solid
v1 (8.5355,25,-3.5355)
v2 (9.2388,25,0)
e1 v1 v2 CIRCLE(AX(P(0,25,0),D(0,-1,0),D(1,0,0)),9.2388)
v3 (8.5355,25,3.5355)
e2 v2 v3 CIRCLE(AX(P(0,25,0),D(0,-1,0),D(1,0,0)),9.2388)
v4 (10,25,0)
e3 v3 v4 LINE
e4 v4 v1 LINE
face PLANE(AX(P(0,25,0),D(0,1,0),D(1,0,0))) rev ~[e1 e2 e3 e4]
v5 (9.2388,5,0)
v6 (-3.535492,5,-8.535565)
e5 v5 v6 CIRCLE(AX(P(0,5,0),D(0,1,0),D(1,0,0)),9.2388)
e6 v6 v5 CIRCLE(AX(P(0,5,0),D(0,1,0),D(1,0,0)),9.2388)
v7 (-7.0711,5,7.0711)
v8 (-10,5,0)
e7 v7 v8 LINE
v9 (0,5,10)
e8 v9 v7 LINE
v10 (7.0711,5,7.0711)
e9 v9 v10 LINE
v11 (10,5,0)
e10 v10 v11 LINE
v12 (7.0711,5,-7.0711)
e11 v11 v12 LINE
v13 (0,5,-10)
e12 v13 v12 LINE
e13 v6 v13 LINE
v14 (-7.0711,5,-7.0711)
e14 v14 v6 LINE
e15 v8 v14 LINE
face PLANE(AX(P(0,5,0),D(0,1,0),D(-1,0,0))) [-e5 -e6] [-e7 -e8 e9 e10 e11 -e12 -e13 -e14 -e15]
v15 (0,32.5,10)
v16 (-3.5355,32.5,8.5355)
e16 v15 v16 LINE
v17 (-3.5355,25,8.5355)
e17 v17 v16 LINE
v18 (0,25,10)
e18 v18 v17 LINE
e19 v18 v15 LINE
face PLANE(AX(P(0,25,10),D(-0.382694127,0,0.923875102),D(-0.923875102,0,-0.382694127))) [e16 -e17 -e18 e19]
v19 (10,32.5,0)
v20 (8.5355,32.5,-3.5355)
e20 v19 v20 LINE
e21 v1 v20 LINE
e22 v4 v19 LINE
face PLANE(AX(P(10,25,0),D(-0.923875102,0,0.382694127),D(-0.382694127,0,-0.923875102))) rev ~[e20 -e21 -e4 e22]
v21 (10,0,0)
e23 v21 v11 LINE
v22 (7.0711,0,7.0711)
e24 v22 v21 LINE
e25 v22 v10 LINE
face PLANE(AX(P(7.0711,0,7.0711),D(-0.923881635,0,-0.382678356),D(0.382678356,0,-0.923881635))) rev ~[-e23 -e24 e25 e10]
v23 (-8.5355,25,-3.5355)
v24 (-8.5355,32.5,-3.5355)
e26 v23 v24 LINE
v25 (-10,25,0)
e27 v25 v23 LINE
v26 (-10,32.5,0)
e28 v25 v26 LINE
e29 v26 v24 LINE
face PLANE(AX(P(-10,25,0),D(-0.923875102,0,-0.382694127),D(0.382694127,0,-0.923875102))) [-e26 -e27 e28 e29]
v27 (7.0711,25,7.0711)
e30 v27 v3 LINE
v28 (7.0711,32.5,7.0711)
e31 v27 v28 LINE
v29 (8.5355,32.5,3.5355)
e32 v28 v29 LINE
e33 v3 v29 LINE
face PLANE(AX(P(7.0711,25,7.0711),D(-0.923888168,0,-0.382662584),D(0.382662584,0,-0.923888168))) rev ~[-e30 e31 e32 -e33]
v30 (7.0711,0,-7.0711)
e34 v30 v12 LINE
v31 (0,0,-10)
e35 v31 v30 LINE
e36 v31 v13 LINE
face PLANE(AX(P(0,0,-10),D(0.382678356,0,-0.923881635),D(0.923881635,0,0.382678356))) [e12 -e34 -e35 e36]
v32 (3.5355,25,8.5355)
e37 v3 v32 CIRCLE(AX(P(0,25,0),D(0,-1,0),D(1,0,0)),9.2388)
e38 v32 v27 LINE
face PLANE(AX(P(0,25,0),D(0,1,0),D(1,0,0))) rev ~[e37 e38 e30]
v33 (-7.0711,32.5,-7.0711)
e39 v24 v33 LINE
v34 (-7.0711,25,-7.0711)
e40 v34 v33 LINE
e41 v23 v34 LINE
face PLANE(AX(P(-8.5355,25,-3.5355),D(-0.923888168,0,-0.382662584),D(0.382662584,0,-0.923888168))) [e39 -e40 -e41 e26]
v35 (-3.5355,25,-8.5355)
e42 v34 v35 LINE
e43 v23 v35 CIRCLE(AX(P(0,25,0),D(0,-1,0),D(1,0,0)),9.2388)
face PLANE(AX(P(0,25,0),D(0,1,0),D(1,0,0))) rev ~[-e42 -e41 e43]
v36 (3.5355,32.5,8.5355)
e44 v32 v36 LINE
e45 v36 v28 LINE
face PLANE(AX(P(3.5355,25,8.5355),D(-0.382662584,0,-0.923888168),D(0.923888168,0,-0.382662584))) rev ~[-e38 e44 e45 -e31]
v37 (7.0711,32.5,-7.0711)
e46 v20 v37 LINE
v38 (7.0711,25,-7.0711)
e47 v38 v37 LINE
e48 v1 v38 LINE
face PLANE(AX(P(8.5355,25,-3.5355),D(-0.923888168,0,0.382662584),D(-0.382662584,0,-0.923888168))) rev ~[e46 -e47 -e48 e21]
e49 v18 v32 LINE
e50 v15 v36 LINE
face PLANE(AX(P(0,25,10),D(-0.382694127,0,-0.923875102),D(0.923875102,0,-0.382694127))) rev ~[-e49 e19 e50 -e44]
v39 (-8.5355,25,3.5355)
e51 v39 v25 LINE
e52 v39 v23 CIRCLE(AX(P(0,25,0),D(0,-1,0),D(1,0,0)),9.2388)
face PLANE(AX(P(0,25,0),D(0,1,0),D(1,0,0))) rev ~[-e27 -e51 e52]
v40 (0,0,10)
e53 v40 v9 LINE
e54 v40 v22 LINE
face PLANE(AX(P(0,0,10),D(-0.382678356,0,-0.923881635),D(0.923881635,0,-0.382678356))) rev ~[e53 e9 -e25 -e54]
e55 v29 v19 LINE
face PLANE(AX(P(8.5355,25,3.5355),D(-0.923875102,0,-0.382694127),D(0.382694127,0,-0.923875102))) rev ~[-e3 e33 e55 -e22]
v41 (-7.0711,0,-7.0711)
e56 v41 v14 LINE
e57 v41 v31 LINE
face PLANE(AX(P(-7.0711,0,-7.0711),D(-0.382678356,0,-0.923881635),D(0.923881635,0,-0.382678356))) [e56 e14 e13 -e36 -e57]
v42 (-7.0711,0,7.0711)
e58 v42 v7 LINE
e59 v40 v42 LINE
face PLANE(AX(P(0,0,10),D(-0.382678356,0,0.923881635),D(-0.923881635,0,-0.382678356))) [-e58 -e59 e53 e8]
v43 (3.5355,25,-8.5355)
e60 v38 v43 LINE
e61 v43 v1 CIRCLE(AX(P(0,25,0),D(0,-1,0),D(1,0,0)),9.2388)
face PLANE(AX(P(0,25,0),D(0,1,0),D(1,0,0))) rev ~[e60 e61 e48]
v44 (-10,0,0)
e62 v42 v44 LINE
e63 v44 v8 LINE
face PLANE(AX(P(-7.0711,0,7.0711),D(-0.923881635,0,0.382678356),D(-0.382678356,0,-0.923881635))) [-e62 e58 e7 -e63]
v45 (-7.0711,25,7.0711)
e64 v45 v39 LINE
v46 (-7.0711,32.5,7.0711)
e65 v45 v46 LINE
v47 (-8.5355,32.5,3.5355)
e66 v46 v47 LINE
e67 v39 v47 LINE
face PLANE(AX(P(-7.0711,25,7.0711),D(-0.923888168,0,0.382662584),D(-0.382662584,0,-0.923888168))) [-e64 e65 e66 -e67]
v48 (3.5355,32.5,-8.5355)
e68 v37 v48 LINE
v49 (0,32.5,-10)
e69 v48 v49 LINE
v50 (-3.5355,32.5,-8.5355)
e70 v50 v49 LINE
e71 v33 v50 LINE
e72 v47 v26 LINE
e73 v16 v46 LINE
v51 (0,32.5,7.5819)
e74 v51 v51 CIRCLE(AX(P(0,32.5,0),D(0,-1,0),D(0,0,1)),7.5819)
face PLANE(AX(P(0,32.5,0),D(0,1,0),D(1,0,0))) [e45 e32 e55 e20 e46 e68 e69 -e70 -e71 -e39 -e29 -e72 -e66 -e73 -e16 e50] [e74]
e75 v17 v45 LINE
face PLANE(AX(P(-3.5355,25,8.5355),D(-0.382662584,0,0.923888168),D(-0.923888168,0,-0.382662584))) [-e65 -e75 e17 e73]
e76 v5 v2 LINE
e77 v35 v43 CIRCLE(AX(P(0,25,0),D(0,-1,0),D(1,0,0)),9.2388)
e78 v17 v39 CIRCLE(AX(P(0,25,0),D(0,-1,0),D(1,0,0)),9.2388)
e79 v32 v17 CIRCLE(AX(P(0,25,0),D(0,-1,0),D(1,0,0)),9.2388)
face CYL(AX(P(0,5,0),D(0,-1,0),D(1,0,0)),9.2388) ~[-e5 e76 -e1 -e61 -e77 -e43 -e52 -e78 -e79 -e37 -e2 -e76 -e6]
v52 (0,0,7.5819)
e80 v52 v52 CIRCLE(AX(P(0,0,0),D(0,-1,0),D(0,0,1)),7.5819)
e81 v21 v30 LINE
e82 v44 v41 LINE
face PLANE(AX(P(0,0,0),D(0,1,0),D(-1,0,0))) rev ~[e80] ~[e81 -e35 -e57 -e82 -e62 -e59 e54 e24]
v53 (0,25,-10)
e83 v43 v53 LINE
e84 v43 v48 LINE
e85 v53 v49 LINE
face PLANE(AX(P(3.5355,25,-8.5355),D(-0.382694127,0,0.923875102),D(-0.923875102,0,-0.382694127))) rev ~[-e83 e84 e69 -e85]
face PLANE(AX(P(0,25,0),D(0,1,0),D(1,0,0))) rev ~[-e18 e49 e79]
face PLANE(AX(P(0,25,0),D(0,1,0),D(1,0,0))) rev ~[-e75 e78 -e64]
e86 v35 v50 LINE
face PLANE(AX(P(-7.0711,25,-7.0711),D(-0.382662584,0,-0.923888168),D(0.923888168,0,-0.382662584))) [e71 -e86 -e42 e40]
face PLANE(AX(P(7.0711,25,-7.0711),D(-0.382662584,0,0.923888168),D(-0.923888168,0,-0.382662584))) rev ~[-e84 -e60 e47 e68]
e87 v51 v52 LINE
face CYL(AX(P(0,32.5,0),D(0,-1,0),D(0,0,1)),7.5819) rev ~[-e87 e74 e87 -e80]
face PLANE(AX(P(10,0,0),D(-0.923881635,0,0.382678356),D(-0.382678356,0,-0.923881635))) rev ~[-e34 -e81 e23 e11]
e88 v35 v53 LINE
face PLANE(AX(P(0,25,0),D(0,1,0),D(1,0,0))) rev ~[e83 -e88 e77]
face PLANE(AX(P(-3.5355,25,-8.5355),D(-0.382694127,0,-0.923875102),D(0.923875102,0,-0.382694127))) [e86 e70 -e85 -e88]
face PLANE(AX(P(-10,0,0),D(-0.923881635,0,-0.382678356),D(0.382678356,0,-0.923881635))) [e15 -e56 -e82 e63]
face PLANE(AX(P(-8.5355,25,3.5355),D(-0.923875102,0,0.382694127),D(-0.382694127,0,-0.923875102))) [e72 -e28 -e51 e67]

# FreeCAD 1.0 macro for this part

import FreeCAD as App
import Part
import Sketcher

V = App.Vector
Q = App.Units.Quantity

doc = App.newDocument("Part")
params = doc.addObject("Spreadsheet::Sheet", "Params")
for row, (alias, value) in enumerate([
    ("pad1_length", "5 mm"),
    ("pad2_length", "20 mm"),
    ("pad3_length", "7.5 mm"),
    ("hole_diameter", "15.1638 mm"),
], start=1):
    params.set(f"A{row}", alias)
    params.set(f"B{row}", "=" + value)
    params.setAlias(f"B{row}", alias)

body = doc.addObject("PartDesign::Body", "Body")

# Sketch on XZ plane
sketch1 = doc.addObject("Sketcher::SketchObject", "Sketch")
body.addObject(sketch1)
sketch1.AttachmentSupport = (doc.XZ_Plane, [""])
sketch1.MapMode = "FlatFace"
sketch1.addGeometry(Part.LineSegment(V(-7, -7, 0), V(-10, 0, 0)), False)
sketch1.addGeometry(Part.LineSegment(V(-10, 0, 0), V(-7, 7, 0)), False)
sketch1.addGeometry(Part.LineSegment(V(-7, 7, 0), V(0, 10, 0)), False)
sketch1.addGeometry(Part.LineSegment(V(0, 10, 0), V(7, 7, 0)), False)
sketch1.addGeometry(Part.LineSegment(V(7, 7, 0), V(10, 0, 0)), False)
sketch1.addGeometry(Part.LineSegment(V(10, 0, 0), V(7, -7, 0)), False)
sketch1.addGeometry(Part.LineSegment(V(7, -7, 0), V(0, -10, 0)), False)
sketch1.addGeometry(Part.LineSegment(V(0, -10, 0), V(-7, -7, 0)), False)
sketch1.addConstraint(Sketcher.Constraint("Coincident", 0, 2, 1, 1))
sketch1.addConstraint(Sketcher.Constraint("Coincident", 1, 2, 2, 1))
sketch1.addConstraint(Sketcher.Constraint("Coincident", 2, 2, 3, 1))
sketch1.addConstraint(Sketcher.Constraint("Coincident", 3, 2, 4, 1))
sketch1.addConstraint(Sketcher.Constraint("Coincident", 4, 2, 5, 1))
sketch1.addConstraint(Sketcher.Constraint("Coincident", 5, 2, 6, 1))
sketch1.addConstraint(Sketcher.Constraint("Coincident", 6, 2, 7, 1))
sketch1.addConstraint(Sketcher.Constraint("Coincident", 7, 2, 0, 1))
sketch1.addConstraint(Sketcher.Constraint("Symmetric", 0, 2, 4, 2, -1, 1))
sketch1.addConstraint(Sketcher.Constraint("Symmetric", 1, 2, 5, 2, -1, 1))
sketch1.addConstraint(Sketcher.Constraint("Symmetric", 2, 2, 6, 2, -1, 1))
sketch1.addConstraint(Sketcher.Constraint("Symmetric", 3, 2, 7, 2, -1, 1))
sketch1.addConstraint(Sketcher.Constraint("Symmetric", 1, 2, 3, 2, -2))
sketch1.addConstraint(Sketcher.Constraint("PointOnObject", 0, 2, -1))
sketch1.addConstraint(Sketcher.Constraint("PointOnObject", 2, 2, -2))
sketch1.addConstraint(Sketcher.Constraint("Perpendicular", 0, 2))
sketch1.addConstraint(Sketcher.Constraint("Equal", 1, 2))
sketch1.addConstraint(Sketcher.Constraint("DistanceX", 0, 2, 4, 2, 20.0))
sketch1.addConstraint(Sketcher.Constraint("Angle", 0, Q("112.4997 deg")))
pad1 = doc.addObject("PartDesign::Pad", "Pad")
body.addObject(pad1)
pad1.Profile = sketch1
pad1.setExpression("Length", "Params.pad1_length")
pad1.Reversed = True

# Sketch on XZ plane
sketch2 = doc.addObject("Sketcher::SketchObject", "Sketch001")
body.addObject(sketch2)
sketch2.AttachmentSupport = (doc.XZ_Plane, [""])
sketch2.MapMode = "FlatFace"
sketch2.AttachmentOffset = App.Placement(V(0, 0, -5), App.Rotation())
sketch2.addGeometry(Part.Circle(V(0, 0, 0), V(0, 0, 1), 9), False)
sketch2.addConstraint(Sketcher.Constraint("Coincident", 0, 3, -1, 1))
sketch2.addConstraint(Sketcher.Constraint("Diameter", 0, 18.4776))
pad2 = doc.addObject("PartDesign::Pad", "Pad001")
body.addObject(pad2)
pad2.Profile = sketch2
pad2.setExpression("Length", "Params.pad2_length")
pad2.Reversed = True

# Sketch on XZ plane
sketch3 = doc.addObject("Sketcher::SketchObject", "Sketch002")
body.addObject(sketch3)
sketch3.AttachmentSupport = (doc.XZ_Plane, [""])
sketch3.MapMode = "FlatFace"
sketch3.AttachmentOffset = App.Placement(V(0, 0, -25), App.Rotation())
sketch3.addGeometry(Part.LineSegment(V(3.5, 8.5, 0), V(7.1, 7.1, 0)), False)
sketch3.addGeometry(Part.LineSegment(V(7.1, 7.1, 0), V(8.5, 3.5, 0)), False)
sketch3.addGeometry(Part.LineSegment(V(8.5, 3.5, 0), V(10, 0, 0)), False)
sketch3.addGeometry(Part.LineSegment(V(10, 0, 0), V(8.5, -3.5, 0)), False)
sketch3.addGeometry(Part.LineSegment(V(8.5, -3.5, 0), V(7.1, -7.1, 0)), False)
sketch3.addGeometry(Part.LineSegment(V(7.1, -7.1, 0), V(3.5, -8.5, 0)), False)
sketch3.addGeometry(Part.LineSegment(V(3.5, -8.5, 0), V(0, -10, 0)), False)
sketch3.addGeometry(Part.LineSegment(V(0, -10, 0), V(-3.5, -8.5, 0)), False)
sketch3.addGeometry(Part.LineSegment(V(-3.5, -8.5, 0), V(-7.1, -7.1, 0)), False)
sketch3.addGeometry(Part.LineSegment(V(-7.1, -7.1, 0), V(-8.5, -3.5, 0)), False)
sketch3.addGeometry(Part.LineSegment(V(-8.5, -3.5, 0), V(-10, 0, 0)), False)
sketch3.addGeometry(Part.LineSegment(V(-10, 0, 0), V(-8.5, 3.5, 0)), False)
sketch3.addGeometry(Part.LineSegment(V(-8.5, 3.5, 0), V(-7.1, 7.1, 0)), False)
sketch3.addGeometry(Part.LineSegment(V(-7.1, 7.1, 0), V(-3.5, 8.5, 0)), False)
sketch3.addGeometry(Part.LineSegment(V(-3.5, 8.5, 0), V(0, 10, 0)), False)
sketch3.addGeometry(Part.LineSegment(V(0, 10, 0), V(3.5, 8.5, 0)), False)
sketch3.addConstraint(Sketcher.Constraint("Coincident", 0, 2, 1, 1))
sketch3.addConstraint(Sketcher.Constraint("Coincident", 1, 2, 2, 1))
sketch3.addConstraint(Sketcher.Constraint("Coincident", 2, 2, 3, 1))
sketch3.addConstraint(Sketcher.Constraint("Coincident", 3, 2, 4, 1))
sketch3.addConstraint(Sketcher.Constraint("Coincident", 4, 2, 5, 1))
sketch3.addConstraint(Sketcher.Constraint("Coincident", 5, 2, 6, 1))
sketch3.addConstraint(Sketcher.Constraint("Coincident", 6, 2, 7, 1))
sketch3.addConstraint(Sketcher.Constraint("Coincident", 7, 2, 8, 1))
sketch3.addConstraint(Sketcher.Constraint("Coincident", 8, 2, 9, 1))
sketch3.addConstraint(Sketcher.Constraint("Coincident", 9, 2, 10, 1))
sketch3.addConstraint(Sketcher.Constraint("Coincident", 10, 2, 11, 1))
sketch3.addConstraint(Sketcher.Constraint("Coincident", 11, 2, 12, 1))
sketch3.addConstraint(Sketcher.Constraint("Coincident", 12, 2, 13, 1))
sketch3.addConstraint(Sketcher.Constraint("Coincident", 13, 2, 14, 1))
sketch3.addConstraint(Sketcher.Constraint("Coincident", 14, 2, 15, 1))
sketch3.addConstraint(Sketcher.Constraint("Coincident", 15, 2, 0, 1))
sketch3.addConstraint(Sketcher.Constraint("Symmetric", 0, 2, 8, 2, -1, 1))
sketch3.addConstraint(Sketcher.Constraint("Symmetric", 1, 2, 9, 2, -1, 1))
sketch3.addConstraint(Sketcher.Constraint("Symmetric", 2, 2, 10, 2, -1, 1))
sketch3.addConstraint(Sketcher.Constraint("Symmetric", 3, 2, 11, 2, -1, 1))
sketch3.addConstraint(Sketcher.Constraint("Symmetric", 4, 2, 12, 2, -1, 1))
sketch3.addConstraint(Sketcher.Constraint("Symmetric", 5, 2, 13, 2, -1, 1))
sketch3.addConstraint(Sketcher.Constraint("Symmetric", 6, 2, 14, 2, -1, 1))
sketch3.addConstraint(Sketcher.Constraint("Symmetric", 7, 2, 15, 2, -1, 1))
sketch3.addConstraint(Sketcher.Constraint("Symmetric", 5, 2, 7, 2, -2))
sketch3.addConstraint(Sketcher.Constraint("Symmetric", 4, 2, 8, 2, -2))
sketch3.addConstraint(Sketcher.Constraint("Symmetric", 3, 2, 9, 2, -2))
sketch3.addConstraint(Sketcher.Constraint("PointOnObject", 2, 2, -1))
sketch3.addConstraint(Sketcher.Constraint("PointOnObject", 6, 2, -2))
sketch3.addConstraint(Sketcher.Constraint("Parallel", 1, 2))
sketch3.addConstraint(Sketcher.Constraint("Perpendicular", 0, 3))
sketch3.addConstraint(Sketcher.Constraint("Parallel", 5, 6))
sketch3.addConstraint(Sketcher.Constraint("Equal", 0, 1))
sketch3.addConstraint(Sketcher.Constraint("Equal", 1, 2))
sketch3.addConstraint(Sketcher.Constraint("Equal", 5, 6))
sketch3.addConstraint(Sketcher.Constraint("DistanceX", -1, 1, 2, 2, 10.0))
sketch3.addConstraint(Sketcher.Constraint("Angle", 2, Q("-67.4993 deg")))
pad3 = doc.addObject("PartDesign::Pad", "Pad002")
body.addObject(pad3)
pad3.Profile = sketch3
pad3.setExpression("Length", "Params.pad3_length")
pad3.Reversed = True

# Sketch on XZ plane
sketch4 = doc.addObject("Sketcher::SketchObject", "Sketch003")
body.addObject(sketch4)
sketch4.AttachmentSupport = (doc.XZ_Plane, [""])
sketch4.MapMode = "FlatFace"
sketch4.AttachmentOffset = App.Placement(V(0, 0, -32.5), App.Rotation())
sketch4.addGeometry(Part.Circle(V(0, 0, 0), V(0, 0, 1), 8), False)
sketch4.addConstraint(Sketcher.Constraint("Coincident", 0, 3, -1, 1))
sketch4.addConstraint(Sketcher.Constraint("Diameter", 0, 15.1638))
doc.recompute()
hole = doc.addObject("PartDesign::Hole", "Hole")
body.addObject(hole)
hole.Profile = sketch4
hole.ThreadType = "None"
hole.setExpression("Diameter", "Params.hole_diameter")
hole.DepthType = "ThroughAll"
hole.Reversed = True

doc.recompute()
